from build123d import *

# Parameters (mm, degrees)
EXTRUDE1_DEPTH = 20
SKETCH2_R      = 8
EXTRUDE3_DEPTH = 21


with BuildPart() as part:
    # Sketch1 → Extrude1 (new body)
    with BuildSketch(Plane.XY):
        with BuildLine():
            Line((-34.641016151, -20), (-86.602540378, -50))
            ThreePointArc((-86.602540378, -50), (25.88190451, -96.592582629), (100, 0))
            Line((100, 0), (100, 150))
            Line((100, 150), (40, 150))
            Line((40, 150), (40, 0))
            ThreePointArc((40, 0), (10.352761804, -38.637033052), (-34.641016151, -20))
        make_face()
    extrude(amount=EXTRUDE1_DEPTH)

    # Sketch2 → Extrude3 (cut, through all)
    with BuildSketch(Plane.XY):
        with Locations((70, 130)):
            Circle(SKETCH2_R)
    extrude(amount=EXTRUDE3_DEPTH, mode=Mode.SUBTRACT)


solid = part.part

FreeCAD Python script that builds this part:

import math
import FreeCAD as App
import Part
import Sketcher

V = App.Vector
Q = App.Units.Quantity

doc = App.newDocument("Part")
params = doc.addObject("Spreadsheet::Sheet", "Params")
for row, (alias, value) in enumerate([
    ("sketch1_radius", "100 mm"),
    ("sketch1_radius2", "40 mm"),
    ("sketch1_height", "150 mm"),
    ("pad1_length", "20 mm"),
    ("sketch2_diameter", "16 mm"),
], start=1):
    params.set(f"A{row}", alias)
    params.set(f"B{row}", "=" + value)
    params.setAlias(f"B{row}", alias)

body = doc.addObject("PartDesign::Body", "Body")

# Sketch on XY plane
sketch1 = body.newObject("Sketcher::SketchObject", "Sketch")
sketch1.AttachmentSupport = (doc.getObject("XY_Plane"), [""])
sketch1.MapMode = "FlatFace"
sketch1.addGeometry([
    Part.LineSegment(V(-35, -20, 0), V(-87, -50, 0)),  # 0
    Part.ArcOfCircle(Part.Circle(V(0, 0, 0), V(0, 0, 1), 100), math.radians(-150), math.radians(0)),  # 1
    Part.LineSegment(V(100, 0, 0), V(100, 150, 0)),  # 2
    Part.LineSegment(V(100, 150, 0), V(40, 150, 0)),  # 3
    Part.LineSegment(V(40, 150, 0), V(40, 0, 0)),  # 4
    Part.ArcOfCircle(Part.Circle(V(0, 0, 0), V(0, 0, 1), 40), math.radians(-150), math.radians(0)),  # 5
], False)
sketch1.addConstraint([
    Sketcher.Constraint("Coincident", 0, 2, 1, 1),
    Sketcher.Constraint("Tangent", 1, 2, 2, 1),
    Sketcher.Constraint("Coincident", 2, 2, 3, 1),
    Sketcher.Constraint("Coincident", 3, 2, 4, 1),
    Sketcher.Constraint("Tangent", 4, 2, 5, 2),
    Sketcher.Constraint("Coincident", 5, 1, 0, 1),
    Sketcher.Constraint("Vertical", 2),
    Sketcher.Constraint("Horizontal", 3),
    Sketcher.Constraint("Vertical", 4),
    Sketcher.Constraint("Coincident", 1, 3, -1, 1),
    Sketcher.Constraint("Coincident", 5, 3, -1, 1),
    Sketcher.Constraint("Radius", 1, Q("100 mm")),
    Sketcher.Constraint("Radius", 5, Q("40 mm")),
    Sketcher.Constraint("DistanceY", 2, 1, 2, 2, Q("150 mm")),
    Sketcher.Constraint("Angle", 0, Q("-150 deg")),
    Sketcher.Constraint("DistanceY", 0, 2, -1, 1, Q("50 mm")),
])
sketch1.setExpression("Constraints[11]", "Params.sketch1_radius")
sketch1.setExpression("Constraints[12]", "Params.sketch1_radius2")
sketch1.setExpression("Constraints[13]", "Params.sketch1_height")
pad1 = body.newObject("PartDesign::Pad", "Pad")
pad1.Profile = sketch1
pad1.setExpression("Length", "Params.pad1_length")

# Sketch on XY plane
sketch2 = body.newObject("Sketcher::SketchObject", "Sketch001")
sketch2.AttachmentSupport = (doc.getObject("XY_Plane"), [""])
sketch2.MapMode = "FlatFace"
sketch2.addGeometry(Part.Circle(V(70, 130, 0), V(0, 0, 1), 8), False)
sketch2.addConstraint([
    Sketcher.Constraint("Diameter", 0, Q("16 mm")),
    Sketcher.Constraint("DistanceX", -1, 1, 0, 3, Q("70 mm")),
    Sketcher.Constraint("DistanceY", -1, 1, 0, 3, Q("130 mm")),
])
sketch2.setExpression("Constraints[0]", "Params.sketch2_diameter")
pocket1 = body.newObject("PartDesign::Pocket", "Pocket")
pocket1.Profile = sketch2
pocket1.Type = "ThroughAll"
pocket1.Reversed = True

doc.recompute()
